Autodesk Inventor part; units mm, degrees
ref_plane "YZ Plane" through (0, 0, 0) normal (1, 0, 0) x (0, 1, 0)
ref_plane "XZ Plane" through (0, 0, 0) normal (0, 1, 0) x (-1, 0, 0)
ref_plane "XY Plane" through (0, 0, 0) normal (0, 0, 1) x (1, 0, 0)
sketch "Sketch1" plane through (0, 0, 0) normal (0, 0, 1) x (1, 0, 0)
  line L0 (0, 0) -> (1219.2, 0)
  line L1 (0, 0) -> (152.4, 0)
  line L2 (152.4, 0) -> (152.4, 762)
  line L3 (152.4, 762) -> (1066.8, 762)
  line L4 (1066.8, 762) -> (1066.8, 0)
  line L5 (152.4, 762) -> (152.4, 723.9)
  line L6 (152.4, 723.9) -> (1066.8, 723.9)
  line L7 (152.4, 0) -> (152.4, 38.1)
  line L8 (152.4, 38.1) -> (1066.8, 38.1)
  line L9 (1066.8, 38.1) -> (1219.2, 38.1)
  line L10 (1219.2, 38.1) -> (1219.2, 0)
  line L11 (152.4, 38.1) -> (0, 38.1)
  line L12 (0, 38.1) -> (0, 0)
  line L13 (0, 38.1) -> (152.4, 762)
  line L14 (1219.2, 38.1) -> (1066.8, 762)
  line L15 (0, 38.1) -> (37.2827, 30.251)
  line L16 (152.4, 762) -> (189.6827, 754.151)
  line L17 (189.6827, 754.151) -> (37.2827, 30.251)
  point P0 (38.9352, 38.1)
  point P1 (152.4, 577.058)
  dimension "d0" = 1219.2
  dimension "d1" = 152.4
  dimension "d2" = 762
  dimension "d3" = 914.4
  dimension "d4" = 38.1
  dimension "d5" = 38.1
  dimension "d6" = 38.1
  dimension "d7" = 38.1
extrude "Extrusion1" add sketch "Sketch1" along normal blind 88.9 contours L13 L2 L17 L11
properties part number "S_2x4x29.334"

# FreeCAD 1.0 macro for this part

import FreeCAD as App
import Part
import Sketcher
from FreeCAD import Vector
Q = App.Units.Quantity


def add_polygon(sketch, points):
    """Adds a closed chain of lines whose ends are joined by coincident constraints."""
    first, n = sketch.GeometryCount, len(points)
    for a, b in zip(points, points[1:] + points[:1]):
        sketch.addGeometry(Part.LineSegment(App.Vector(*a, 0), App.Vector(*b, 0)), False)
    for i in range(n):
        sketch.addConstraint(Sketcher.Constraint("Coincident", first + i, 2, first + (i + 1) % n, 1))

doc = App.newDocument("Part")
params = doc.addObject("Spreadsheet::Sheet", "Params")
for row, (alias, value) in enumerate([
    ("pad1_length", "3.5 in"),
], start=1):
    params.set(f"A{row}", alias)
    params.set(f"B{row}", "=" + value)
    params.setAlias(f"B{row}", alias)

body = doc.addObject("PartDesign::Body", "Body")

sketch1 = body.newObject("Sketcher::SketchObject", "Sketch")
sketch1.AttachmentSupport = (doc.getObject("XY_Plane"), [""])
sketch1.MapMode = "FlatFace"
add_polygon(sketch1, [(152.4, 762), (0, 38.1), (38.935121, 38.1), (152.4, 577.058175)])
sketch1.addConstraint(Sketcher.Constraint("Horizontal", 1))
sketch1.addConstraint(Sketcher.Constraint("Vertical", 3))
sketch1.addConstraint(Sketcher.Constraint("PointOnObject", 0, 2, -2))
sketch1.addConstraint(Sketcher.Constraint("Parallel", 0, 2))
sketch1.addConstraint(Sketcher.Constraint("DistanceX", -1, 1, 2, 2, Q("6 in")))
sketch1.addConstraint(Sketcher.Constraint("DistanceY", -1, 1, 3, 2, Q("30 in")))
sketch1.addConstraint(Sketcher.Constraint("DistanceY", -1, 1, 0, 2, Q("1.5 in")))
sketch1.addConstraint(Sketcher.Constraint("DistanceX", 1, 1, 1, 2, Q("38.9351 mm")))
pad1 = body.newObject("PartDesign::Pad", "Pad")
pad1.Profile = sketch1
pad1.setExpression("Length", "Params.pad1_length")

doc.recompute()
